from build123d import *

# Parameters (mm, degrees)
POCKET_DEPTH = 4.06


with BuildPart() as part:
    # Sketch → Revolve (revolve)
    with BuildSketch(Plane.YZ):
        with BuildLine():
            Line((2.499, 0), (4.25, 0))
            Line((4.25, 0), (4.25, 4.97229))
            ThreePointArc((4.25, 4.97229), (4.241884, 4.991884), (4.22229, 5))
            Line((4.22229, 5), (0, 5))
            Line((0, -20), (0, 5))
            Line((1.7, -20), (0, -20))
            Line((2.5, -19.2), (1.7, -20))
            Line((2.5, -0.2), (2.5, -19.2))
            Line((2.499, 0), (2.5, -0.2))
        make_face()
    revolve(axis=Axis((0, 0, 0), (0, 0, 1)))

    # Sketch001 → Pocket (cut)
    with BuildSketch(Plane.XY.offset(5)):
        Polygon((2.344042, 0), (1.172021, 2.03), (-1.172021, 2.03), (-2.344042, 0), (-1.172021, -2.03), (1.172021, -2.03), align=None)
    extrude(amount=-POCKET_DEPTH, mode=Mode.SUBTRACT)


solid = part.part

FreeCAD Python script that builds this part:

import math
import FreeCAD as App
import Part
import Sketcher
from FreeCAD import Vector
Q = App.Units.Quantity


def add_polygon(sketch, points):
    """Adds a closed chain of lines whose ends are joined by coincident constraints."""
    first, n = sketch.GeometryCount, len(points)
    for a, b in zip(points, points[1:] + points[:1]):
        sketch.addGeometry(Part.LineSegment(App.Vector(*a, 0), App.Vector(*b, 0)), False)
    for i in range(n):
        sketch.addConstraint(Sketcher.Constraint("Coincident", first + i, 2, first + (i + 1) % n, 1))

doc = App.newDocument("Part")
params = doc.addObject("Spreadsheet::Sheet", "Params")
for row, (alias, value) in enumerate([
    ("sketch1_height", "25 mm"),
    ("sketch1_height2", "19 mm"),
    ("sketch1_width", "1.7 mm"),
    ("revolution_angle", "360 deg"),
    ("pocket1_length", "4.06 mm"),
], start=1):
    params.set(f"A{row}", alias)
    params.set(f"B{row}", "=" + value)
    params.setAlias(f"B{row}", alias)

body = doc.addObject("PartDesign::Body", "Body")

# Sketch on YZ plane
sketch1 = doc.addObject("Sketcher::SketchObject", "Sketch")
body.addObject(sketch1)
sketch1.AttachmentSupport = (doc.YZ_Plane, [""])
sketch1.MapMode = "FlatFace"
sketch1.addGeometry(Part.LineSegment(Vector(2.499, 0, 0), Vector(4.25, 0, 0)), False)
sketch1.addGeometry(Part.LineSegment(Vector(4.25, 0, 0), Vector(4.25, 4.972, 0)), False)
sketch1.addGeometry(Part.ArcOfCircle(Part.Circle(Vector(4.222, 4.972, 0), Vector(0, 0, 1), 0.028), math.radians(0), math.radians(90)), False)
sketch1.addGeometry(Part.LineSegment(Vector(4.222, 5, 0), Vector(0, 5, 0)), False)
sketch1.addGeometry(Part.LineSegment(Vector(0, 5, 0), Vector(0, -20, 0)), False)
sketch1.addGeometry(Part.LineSegment(Vector(0, -20, 0), Vector(1.7, -20, 0)), False)
sketch1.addGeometry(Part.LineSegment(Vector(1.7, -20, 0), Vector(2.5, -19.2, 0)), False)
sketch1.addGeometry(Part.LineSegment(Vector(2.5, -19.2, 0), Vector(2.5, -0.2, 0)), False)
sketch1.addGeometry(Part.LineSegment(Vector(2.5, -0.2, 0), Vector(2.499, 0, 0)), False)
sketch1.addConstraint(Sketcher.Constraint("Coincident", 0, 2, 1, 1))
sketch1.addConstraint(Sketcher.Constraint("Coincident", 1, 2, 2, 1))
sketch1.addConstraint(Sketcher.Constraint("Coincident", 2, 2, 3, 1))
sketch1.addConstraint(Sketcher.Constraint("Coincident", 3, 2, 4, 1))
sketch1.addConstraint(Sketcher.Constraint("Coincident", 4, 2, 5, 1))
sketch1.addConstraint(Sketcher.Constraint("Coincident", 5, 2, 6, 1))
sketch1.addConstraint(Sketcher.Constraint("Coincident", 6, 2, 7, 1))
sketch1.addConstraint(Sketcher.Constraint("Coincident", 7, 2, 8, 1))
sketch1.addConstraint(Sketcher.Constraint("Coincident", 8, 2, 0, 1))
sketch1.addConstraint(Sketcher.Constraint("Horizontal", 0))
sketch1.addConstraint(Sketcher.Constraint("Vertical", 1))
sketch1.addConstraint(Sketcher.Constraint("Horizontal", 3))
sketch1.addConstraint(Sketcher.Constraint("Vertical", 4))
sketch1.addConstraint(Sketcher.Constraint("Horizontal", 5))
sketch1.addConstraint(Sketcher.Constraint("Vertical", 7))
sketch1.addConstraint(Sketcher.Constraint("PointOnObject", 0, 2, -1))
sketch1.addConstraint(Sketcher.Constraint("PointOnObject", 3, 2, -2))
sketch1.addConstraint(Sketcher.Constraint("Horizontal", 2, 3, 1, 2))
sketch1.addConstraint(Sketcher.Constraint("DistanceY", 4, 2, 4, 1, 25.0))
sketch1.addConstraint(Sketcher.Constraint("DistanceY", 7, 1, 7, 2, 19.0))
sketch1.addConstraint(Sketcher.Constraint("Angle", 6, Q("45 deg")))
sketch1.addConstraint(Sketcher.Constraint("DistanceX", 5, 1, 5, 2, 1.7))
sketch1.addConstraint(Sketcher.Constraint("DistanceY", -1, 1, 2, 2, 5.0))
sketch1.addConstraint(Sketcher.Constraint("DistanceX", -1, 1, 6, 2, 2.5))
sketch1.addConstraint(Sketcher.Constraint("DistanceX", 0, 1, 0, 2, 1.751))
sketch1.addConstraint(Sketcher.Constraint("DistanceX", -1, 1, 0, 2, 4.25))
sketch1.addConstraint(Sketcher.Constraint("Radius", 2, 0.02771))
sketch1.addConstraint(Sketcher.Constraint("DistanceX", 3, 2, 3, 1, 4.22229))
sketch1.setExpression("Constraints[18]", "Params.sketch1_height")
sketch1.setExpression("Constraints[19]", "Params.sketch1_height2")
sketch1.setExpression("Constraints[21]", "Params.sketch1_width")
revolution = doc.addObject("PartDesign::Revolution", "Revolution")
body.addObject(revolution)
revolution.Profile = sketch1
revolution.ReferenceAxis = (sketch1, ["V_Axis"])
revolution.setExpression("Angle", "Params.revolution_angle")

# Sketch on XY plane
sketch2 = doc.addObject("Sketcher::SketchObject", "Sketch001")
body.addObject(sketch2)
sketch2.AttachmentSupport = (doc.XY_Plane, [""])
sketch2.MapMode = "FlatFace"
sketch2.AttachmentOffset = App.Placement(Vector(0, 0, 5), App.Rotation())
add_polygon(sketch2, [(2.3, 0), (1.2, 2), (-1.2, 2), (-2.3, 0), (-1.2, -2), (1.2, -2)])  # lines 0-5
sketch2.addConstraint(Sketcher.Constraint("Horizontal", 1))
sketch2.addConstraint(Sketcher.Constraint("Horizontal", 4))
sketch2.addConstraint(Sketcher.Constraint("Symmetric", 0, 2, 3, 2, -1, 1))
sketch2.addConstraint(Sketcher.Constraint("Symmetric", 2, 2, 5, 2, -1, 1))
sketch2.addConstraint(Sketcher.Constraint("PointOnObject", 2, 2, -1))
sketch2.addConstraint(Sketcher.Constraint("Parallel", 2, 5))
sketch2.addConstraint(Sketcher.Constraint("Vertical", 1, 2, 3, 2))
sketch2.addConstraint(Sketcher.Constraint("Angle", 0, Q("119.999999 deg")))
sketch2.addConstraint(Sketcher.Constraint("DistanceY", -1, 1, 0, 2, 2.03))
sketch2.addConstraint(Sketcher.Constraint("DistanceX", 1, 2, 1, 1, 2.344042))
pocket1 = doc.addObject("PartDesign::Pocket", "Pocket")
body.addObject(pocket1)
pocket1.Profile = sketch2
pocket1.setExpression("Length", "Params.pocket1_length")

doc.recompute()
